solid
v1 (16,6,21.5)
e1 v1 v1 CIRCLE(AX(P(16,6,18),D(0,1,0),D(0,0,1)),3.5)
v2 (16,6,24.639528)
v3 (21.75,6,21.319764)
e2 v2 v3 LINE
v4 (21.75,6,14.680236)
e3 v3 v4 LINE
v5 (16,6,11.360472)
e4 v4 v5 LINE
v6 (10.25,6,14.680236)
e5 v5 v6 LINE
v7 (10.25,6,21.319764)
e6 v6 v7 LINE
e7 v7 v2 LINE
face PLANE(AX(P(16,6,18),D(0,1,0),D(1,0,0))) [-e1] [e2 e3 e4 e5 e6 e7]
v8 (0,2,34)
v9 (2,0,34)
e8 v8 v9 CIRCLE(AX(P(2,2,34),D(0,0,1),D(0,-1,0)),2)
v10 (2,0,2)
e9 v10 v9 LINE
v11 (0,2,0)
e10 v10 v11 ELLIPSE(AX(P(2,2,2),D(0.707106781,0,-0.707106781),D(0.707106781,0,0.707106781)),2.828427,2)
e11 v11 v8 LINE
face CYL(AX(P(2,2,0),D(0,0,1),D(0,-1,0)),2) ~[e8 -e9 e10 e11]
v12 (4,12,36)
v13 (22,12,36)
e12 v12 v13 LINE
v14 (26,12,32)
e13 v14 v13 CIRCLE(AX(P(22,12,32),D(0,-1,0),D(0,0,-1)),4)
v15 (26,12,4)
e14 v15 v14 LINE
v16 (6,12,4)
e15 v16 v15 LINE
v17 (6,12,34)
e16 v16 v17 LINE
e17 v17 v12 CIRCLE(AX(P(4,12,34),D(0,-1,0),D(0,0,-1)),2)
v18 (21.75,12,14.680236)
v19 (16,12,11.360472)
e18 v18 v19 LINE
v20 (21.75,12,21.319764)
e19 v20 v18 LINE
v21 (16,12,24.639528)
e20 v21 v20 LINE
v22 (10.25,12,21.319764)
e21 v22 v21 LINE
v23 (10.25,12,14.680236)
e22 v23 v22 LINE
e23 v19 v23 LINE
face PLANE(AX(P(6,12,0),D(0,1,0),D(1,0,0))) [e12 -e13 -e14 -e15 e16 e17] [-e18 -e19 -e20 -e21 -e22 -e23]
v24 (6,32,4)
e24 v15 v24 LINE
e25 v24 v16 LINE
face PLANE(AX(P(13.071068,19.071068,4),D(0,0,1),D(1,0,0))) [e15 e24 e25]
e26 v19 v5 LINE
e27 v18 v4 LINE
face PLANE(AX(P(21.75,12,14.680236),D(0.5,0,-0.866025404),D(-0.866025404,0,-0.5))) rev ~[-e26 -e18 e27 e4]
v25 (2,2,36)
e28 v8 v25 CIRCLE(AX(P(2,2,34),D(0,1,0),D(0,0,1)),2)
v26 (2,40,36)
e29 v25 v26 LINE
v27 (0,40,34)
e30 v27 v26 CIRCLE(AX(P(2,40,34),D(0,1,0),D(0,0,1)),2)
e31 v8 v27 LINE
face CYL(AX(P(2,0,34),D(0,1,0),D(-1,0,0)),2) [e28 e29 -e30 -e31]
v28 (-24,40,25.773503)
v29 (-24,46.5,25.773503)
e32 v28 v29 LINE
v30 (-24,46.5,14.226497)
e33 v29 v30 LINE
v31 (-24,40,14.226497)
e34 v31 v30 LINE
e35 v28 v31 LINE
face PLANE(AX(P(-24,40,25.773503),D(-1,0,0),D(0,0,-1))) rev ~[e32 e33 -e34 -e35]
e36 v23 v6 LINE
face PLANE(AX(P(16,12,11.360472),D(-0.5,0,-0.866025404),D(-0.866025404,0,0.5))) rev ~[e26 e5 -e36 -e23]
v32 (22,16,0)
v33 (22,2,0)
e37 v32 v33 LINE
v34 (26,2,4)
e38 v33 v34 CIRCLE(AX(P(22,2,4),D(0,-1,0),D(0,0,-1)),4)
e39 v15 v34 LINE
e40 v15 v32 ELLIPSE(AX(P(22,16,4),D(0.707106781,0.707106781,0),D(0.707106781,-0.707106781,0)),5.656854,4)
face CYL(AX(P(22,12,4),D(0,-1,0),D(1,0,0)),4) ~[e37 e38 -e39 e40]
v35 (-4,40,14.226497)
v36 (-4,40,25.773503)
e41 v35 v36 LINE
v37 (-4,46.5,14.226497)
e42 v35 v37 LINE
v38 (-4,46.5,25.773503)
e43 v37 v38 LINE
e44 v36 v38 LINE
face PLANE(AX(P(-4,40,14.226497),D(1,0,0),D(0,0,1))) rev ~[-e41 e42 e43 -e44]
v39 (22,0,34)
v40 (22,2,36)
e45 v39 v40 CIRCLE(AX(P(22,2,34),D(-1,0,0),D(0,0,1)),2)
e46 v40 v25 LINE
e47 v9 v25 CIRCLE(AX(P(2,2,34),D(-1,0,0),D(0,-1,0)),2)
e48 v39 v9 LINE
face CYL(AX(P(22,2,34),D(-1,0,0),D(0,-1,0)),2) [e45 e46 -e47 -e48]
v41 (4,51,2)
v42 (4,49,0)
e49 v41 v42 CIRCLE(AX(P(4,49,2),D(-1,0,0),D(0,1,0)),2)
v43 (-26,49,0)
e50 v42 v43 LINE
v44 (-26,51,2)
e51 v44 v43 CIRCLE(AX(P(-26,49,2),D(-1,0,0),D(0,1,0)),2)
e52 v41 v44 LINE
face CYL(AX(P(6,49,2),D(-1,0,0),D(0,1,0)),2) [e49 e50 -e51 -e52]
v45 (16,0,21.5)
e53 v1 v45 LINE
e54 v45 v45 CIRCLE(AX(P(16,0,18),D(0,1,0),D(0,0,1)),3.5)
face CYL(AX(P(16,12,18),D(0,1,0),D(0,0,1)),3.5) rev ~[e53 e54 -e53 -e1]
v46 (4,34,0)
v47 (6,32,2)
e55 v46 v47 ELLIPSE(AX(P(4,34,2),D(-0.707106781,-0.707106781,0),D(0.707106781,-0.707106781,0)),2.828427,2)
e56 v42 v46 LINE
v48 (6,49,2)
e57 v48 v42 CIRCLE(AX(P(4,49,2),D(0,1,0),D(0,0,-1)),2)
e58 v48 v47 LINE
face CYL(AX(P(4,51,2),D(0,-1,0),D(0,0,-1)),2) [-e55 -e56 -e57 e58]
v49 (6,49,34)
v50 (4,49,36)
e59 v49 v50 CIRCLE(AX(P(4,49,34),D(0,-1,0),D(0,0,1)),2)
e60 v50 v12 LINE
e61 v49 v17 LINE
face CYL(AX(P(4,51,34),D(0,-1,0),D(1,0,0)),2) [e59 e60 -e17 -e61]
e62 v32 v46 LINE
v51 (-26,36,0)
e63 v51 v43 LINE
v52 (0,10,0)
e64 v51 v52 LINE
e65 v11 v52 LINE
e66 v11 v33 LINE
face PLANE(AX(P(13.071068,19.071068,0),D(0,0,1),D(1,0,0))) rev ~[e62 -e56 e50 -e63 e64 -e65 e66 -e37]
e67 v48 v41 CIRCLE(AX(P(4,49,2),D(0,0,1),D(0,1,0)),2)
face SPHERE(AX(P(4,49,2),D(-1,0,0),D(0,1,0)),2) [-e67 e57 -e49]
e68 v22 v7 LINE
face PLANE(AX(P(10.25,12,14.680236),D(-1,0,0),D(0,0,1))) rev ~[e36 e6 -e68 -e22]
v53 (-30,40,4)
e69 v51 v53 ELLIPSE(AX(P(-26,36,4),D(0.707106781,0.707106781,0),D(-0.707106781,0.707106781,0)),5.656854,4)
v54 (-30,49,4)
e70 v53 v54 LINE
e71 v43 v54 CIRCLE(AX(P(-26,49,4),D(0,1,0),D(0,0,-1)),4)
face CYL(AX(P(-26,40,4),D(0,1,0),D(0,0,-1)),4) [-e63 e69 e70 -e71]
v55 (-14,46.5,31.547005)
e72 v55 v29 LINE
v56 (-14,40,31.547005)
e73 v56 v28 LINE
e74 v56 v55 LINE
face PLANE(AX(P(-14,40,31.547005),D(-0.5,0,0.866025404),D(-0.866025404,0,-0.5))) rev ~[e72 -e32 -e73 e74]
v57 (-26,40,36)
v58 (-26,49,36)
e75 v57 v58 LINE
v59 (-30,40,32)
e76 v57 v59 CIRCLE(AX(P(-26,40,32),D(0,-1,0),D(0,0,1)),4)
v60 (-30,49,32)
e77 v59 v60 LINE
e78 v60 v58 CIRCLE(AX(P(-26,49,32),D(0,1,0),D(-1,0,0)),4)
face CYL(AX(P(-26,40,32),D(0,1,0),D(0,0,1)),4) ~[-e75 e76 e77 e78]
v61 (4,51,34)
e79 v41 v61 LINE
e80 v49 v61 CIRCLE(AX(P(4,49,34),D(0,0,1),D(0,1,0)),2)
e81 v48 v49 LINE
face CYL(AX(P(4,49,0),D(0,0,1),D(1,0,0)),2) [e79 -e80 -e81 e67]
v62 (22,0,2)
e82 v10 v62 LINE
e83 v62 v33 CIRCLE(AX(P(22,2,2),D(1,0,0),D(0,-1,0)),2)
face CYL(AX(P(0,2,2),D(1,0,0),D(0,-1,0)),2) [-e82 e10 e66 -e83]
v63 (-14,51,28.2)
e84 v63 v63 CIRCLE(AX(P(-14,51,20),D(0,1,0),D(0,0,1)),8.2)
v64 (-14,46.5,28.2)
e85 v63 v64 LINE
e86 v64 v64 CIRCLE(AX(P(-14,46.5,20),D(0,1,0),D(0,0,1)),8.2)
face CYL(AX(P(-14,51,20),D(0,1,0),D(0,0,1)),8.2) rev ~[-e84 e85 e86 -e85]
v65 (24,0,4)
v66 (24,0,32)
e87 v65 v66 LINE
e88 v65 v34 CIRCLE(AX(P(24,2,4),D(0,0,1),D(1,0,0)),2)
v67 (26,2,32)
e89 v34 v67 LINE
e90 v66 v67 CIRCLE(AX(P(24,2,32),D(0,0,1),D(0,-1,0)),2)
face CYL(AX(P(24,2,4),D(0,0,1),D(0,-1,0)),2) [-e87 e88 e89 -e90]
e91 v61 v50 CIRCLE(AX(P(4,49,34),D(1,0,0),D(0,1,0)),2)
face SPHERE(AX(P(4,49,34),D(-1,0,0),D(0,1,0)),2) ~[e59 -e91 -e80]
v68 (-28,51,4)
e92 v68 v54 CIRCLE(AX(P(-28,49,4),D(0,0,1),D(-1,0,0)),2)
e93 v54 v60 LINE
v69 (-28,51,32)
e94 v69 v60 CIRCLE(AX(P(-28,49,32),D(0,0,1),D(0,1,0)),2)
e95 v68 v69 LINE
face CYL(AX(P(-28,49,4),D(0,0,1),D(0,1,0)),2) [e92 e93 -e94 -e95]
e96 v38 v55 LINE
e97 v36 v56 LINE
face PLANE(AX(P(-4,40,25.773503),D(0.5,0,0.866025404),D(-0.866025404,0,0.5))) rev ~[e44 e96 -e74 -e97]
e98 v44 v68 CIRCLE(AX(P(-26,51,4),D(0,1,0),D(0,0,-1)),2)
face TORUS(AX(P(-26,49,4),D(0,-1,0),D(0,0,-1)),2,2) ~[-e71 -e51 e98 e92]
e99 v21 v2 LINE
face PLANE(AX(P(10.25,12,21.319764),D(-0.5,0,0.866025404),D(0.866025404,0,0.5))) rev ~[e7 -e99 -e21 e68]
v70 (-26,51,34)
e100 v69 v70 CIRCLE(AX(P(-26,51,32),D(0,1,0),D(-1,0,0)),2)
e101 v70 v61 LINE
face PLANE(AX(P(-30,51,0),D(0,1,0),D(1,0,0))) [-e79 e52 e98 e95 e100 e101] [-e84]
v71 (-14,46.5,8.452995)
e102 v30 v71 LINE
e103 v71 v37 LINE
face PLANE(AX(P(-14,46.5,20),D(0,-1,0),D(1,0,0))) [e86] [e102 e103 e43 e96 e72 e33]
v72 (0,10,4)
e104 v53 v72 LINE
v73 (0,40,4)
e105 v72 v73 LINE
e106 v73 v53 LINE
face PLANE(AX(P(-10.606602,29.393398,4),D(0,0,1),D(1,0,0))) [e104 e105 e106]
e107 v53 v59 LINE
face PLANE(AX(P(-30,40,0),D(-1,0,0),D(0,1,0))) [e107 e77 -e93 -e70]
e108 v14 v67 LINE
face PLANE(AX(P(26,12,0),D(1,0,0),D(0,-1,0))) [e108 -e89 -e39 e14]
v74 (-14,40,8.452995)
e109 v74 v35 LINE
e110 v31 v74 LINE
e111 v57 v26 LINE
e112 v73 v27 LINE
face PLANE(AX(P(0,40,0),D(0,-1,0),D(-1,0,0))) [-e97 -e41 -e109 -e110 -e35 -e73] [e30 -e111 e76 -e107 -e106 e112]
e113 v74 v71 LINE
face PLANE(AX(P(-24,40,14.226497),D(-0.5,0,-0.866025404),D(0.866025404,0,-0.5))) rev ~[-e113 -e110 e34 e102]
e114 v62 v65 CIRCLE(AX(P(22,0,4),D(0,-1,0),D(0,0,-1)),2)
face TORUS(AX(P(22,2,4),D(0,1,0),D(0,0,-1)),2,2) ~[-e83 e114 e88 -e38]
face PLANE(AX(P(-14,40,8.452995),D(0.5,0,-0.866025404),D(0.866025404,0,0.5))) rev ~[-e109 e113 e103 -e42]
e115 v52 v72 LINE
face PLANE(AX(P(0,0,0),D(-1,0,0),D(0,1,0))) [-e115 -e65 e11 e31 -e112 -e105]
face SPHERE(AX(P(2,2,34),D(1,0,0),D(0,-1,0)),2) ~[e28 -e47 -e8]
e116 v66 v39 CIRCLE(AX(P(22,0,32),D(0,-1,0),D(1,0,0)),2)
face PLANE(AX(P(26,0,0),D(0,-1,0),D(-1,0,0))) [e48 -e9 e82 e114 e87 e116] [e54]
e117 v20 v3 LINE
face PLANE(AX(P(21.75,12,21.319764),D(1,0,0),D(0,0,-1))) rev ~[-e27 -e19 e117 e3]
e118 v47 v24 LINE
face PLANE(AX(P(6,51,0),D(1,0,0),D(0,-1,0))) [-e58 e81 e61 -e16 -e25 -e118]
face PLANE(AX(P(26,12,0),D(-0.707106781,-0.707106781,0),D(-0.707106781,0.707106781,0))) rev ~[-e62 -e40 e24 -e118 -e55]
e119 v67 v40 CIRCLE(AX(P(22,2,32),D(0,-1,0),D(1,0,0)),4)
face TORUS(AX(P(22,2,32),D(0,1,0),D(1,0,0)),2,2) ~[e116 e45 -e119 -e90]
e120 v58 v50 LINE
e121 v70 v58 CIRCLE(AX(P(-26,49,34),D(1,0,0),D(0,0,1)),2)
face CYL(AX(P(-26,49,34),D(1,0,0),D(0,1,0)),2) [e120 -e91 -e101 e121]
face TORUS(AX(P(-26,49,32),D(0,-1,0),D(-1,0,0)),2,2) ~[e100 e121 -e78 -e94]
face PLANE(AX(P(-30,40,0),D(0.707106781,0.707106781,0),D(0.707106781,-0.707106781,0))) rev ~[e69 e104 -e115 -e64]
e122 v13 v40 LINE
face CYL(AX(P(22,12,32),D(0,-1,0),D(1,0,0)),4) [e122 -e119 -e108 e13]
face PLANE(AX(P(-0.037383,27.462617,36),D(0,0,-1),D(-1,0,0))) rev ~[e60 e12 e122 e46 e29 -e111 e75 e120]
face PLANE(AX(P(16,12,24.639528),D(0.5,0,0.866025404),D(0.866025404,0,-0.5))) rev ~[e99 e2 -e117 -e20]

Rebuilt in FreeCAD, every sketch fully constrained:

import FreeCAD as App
import Part
import Sketcher
Q = App.Units.Quantity


def edges_at(feature, points):
    """Names of the edges that pass closest to the given points."""
    edges = feature.Shape.Edges
    near = lambda p: min(range(len(edges)), key=lambda i: edges[i].distToShape(Part.Vertex(*p))[0])
    return sorted({f"Edge{near(p) + 1}" for p in points})

doc = App.newDocument("Part")
params = doc.addObject("Spreadsheet::Sheet", "Params")
for row, (alias, value) in enumerate([
    ("sketch1_width", "26 mm"),
    ("sketch1_width2", "20 mm"),
    ("sketch1_width3", "36 mm"),
    ("sketch1_height", "40 mm"),
    ("sketch1_height2", "12 mm"),
    ("pad1_length", "36 mm"),
    ("sketch2_diameter", "7 mm"),
    ("pocket1_length", "32 mm"),
    ("sketch3_diameter", "16.4 mm"),
    ("pocket2_length", "32 mm"),
    ("pocket3_length", "6 mm"),
    ("sketch5_width", "20 mm"),
    ("sketch5_width2", "30 mm"),
    ("pad2_length", "4 mm"),
    ("pocket4_length", "6.5 mm"),
    ("fillet_radius", "4 mm"),
    ("fillet2_radius", "2 mm"),
], start=1):
    params.set(f"A{row}", alias)
    params.set(f"B{row}", "=" + value)
    params.setAlias(f"B{row}", alias)

body = doc.addObject("PartDesign::Body", "Body")

# Sketch on XY plane
sketch1 = body.newObject("Sketcher::SketchObject", "Sketch")
sketch1.AttachmentSupport = (doc.getObject("XY_Plane"), [""])
sketch1.MapMode = "FlatFace"
sketch1.addGeometry([
    Part.LineSegment(App.Vector(0, 40, 0), App.Vector(0, 0, 0)),  # 0
    Part.LineSegment(App.Vector(0, 0, 0), App.Vector(26, 0, 0)),  # 1
    Part.LineSegment(App.Vector(26, 0, 0), App.Vector(26, 12, 0)),  # 2
    Part.LineSegment(App.Vector(26, 12, 0), App.Vector(6, 12, 0)),  # 3
    Part.LineSegment(App.Vector(6, 12, 0), App.Vector(6, 51, 0)),  # 4
    Part.LineSegment(App.Vector(6, 51, 0), App.Vector(-30, 51, 0)),  # 5
    Part.LineSegment(App.Vector(-30, 51, 0), App.Vector(-30, 40, 0)),  # 6
    Part.LineSegment(App.Vector(-30, 40, 0), App.Vector(0, 40, 0)),  # 7
], False)
sketch1.addConstraint([
    Sketcher.Constraint("Coincident", 0, 2, 1, 1),
    Sketcher.Constraint("Coincident", 1, 2, 2, 1),
    Sketcher.Constraint("Coincident", 2, 2, 3, 1),
    Sketcher.Constraint("Coincident", 3, 2, 4, 1),
    Sketcher.Constraint("Coincident", 4, 2, 5, 1),
    Sketcher.Constraint("Coincident", 5, 2, 6, 1),
    Sketcher.Constraint("Coincident", 6, 2, 7, 1),
    Sketcher.Constraint("Coincident", 7, 2, 0, 1),
    Sketcher.Constraint("Vertical", 0),
    Sketcher.Constraint("Horizontal", 1),
    Sketcher.Constraint("Vertical", 2),
    Sketcher.Constraint("Horizontal", 3),
    Sketcher.Constraint("Vertical", 4),
    Sketcher.Constraint("Horizontal", 5),
    Sketcher.Constraint("Vertical", 6),
    Sketcher.Constraint("Horizontal", 7),
    Sketcher.Constraint("Coincident", 0, 2, -1, 1),
    Sketcher.Constraint("DistanceX", 1, 1, 1, 2, Q("26 mm")),
    Sketcher.Constraint("DistanceX", 3, 2, 3, 1, Q("20 mm")),
    Sketcher.Constraint("DistanceX", 5, 2, 5, 1, Q("36 mm")),
    Sketcher.Constraint("DistanceY", 0, 2, 0, 1, Q("40 mm")),
    Sketcher.Constraint("DistanceY", 2, 1, 2, 2, Q("12 mm")),
    Sketcher.Constraint("DistanceY", 4, 1, 4, 2, Q("39 mm")),
])
sketch1.setExpression("Constraints[17]", "Params.sketch1_width")
sketch1.setExpression("Constraints[18]", "Params.sketch1_width2")
sketch1.setExpression("Constraints[19]", "Params.sketch1_width3")
sketch1.setExpression("Constraints[20]", "Params.sketch1_height")
sketch1.setExpression("Constraints[21]", "Params.sketch1_height2")
pad1 = body.newObject("PartDesign::Pad", "Pad")
pad1.Profile = sketch1
pad1.setExpression("Length", "Params.pad1_length")

# Sketch on XZ plane
sketch2 = body.newObject("Sketcher::SketchObject", "Sketch001")
sketch2.AttachmentSupport = (doc.getObject("XZ_Plane"), [""])
sketch2.MapMode = "FlatFace"
sketch2.AttachmentOffset = App.Placement(App.Vector(0, 0, -12), App.Rotation())
sketch2.addGeometry(Part.Circle(App.Vector(16, 18, 0), App.Vector(0, 0, 1), 3.5), False)
sketch2.addConstraint([
    Sketcher.Constraint("Diameter", 0, Q("7 mm")),
    Sketcher.Constraint("DistanceX", -1, 1, 0, 3, Q("16 mm")),
    Sketcher.Constraint("DistanceY", -1, 1, 0, 3, Q("18 mm")),
])
sketch2.setExpression("Constraints[0]", "Params.sketch2_diameter")
pocket1 = body.newObject("PartDesign::Pocket", "Pocket")
pocket1.Profile = sketch2
pocket1.setExpression("Length", "Params.pocket1_length")
pocket1.Reversed = True

# Sketch on XZ plane
sketch3 = body.newObject("Sketcher::SketchObject", "Sketch002")
sketch3.AttachmentSupport = (doc.getObject("XZ_Plane"), [""])
sketch3.MapMode = "FlatFace"
sketch3.AttachmentOffset = App.Placement(App.Vector(0, 0, -51), App.Rotation())
sketch3.addGeometry(Part.Circle(App.Vector(-14, 20, 0), App.Vector(0, 0, 1), 8), False)
sketch3.addConstraint([
    Sketcher.Constraint("Diameter", 0, Q("16.4 mm")),
    Sketcher.Constraint("DistanceX", 0, 3, -1, 1, Q("14 mm")),
    Sketcher.Constraint("DistanceY", -1, 1, 0, 3, Q("20 mm")),
])
sketch3.setExpression("Constraints[0]", "Params.sketch3_diameter")
pocket2 = body.newObject("PartDesign::Pocket", "Pocket001")
pocket2.Profile = sketch3
pocket2.setExpression("Length", "Params.pocket2_length")
pocket2.Reversed = True

# Sketch on XZ plane
sketch4 = body.newObject("Sketcher::SketchObject", "Sketch003")
sketch4.AttachmentSupport = (doc.getObject("XZ_Plane"), [""])
sketch4.MapMode = "FlatFace"
sketch4.AttachmentOffset = App.Placement(App.Vector(0, 0, -12), App.Rotation())
sketch4.addGeometry([
    Part.LineSegment(App.Vector(16, 25, 0), App.Vector(22, 21, 0)),  # 0
    Part.LineSegment(App.Vector(22, 21, 0), App.Vector(22, 15, 0)),  # 1
    Part.LineSegment(App.Vector(22, 15, 0), App.Vector(16, 11, 0)),  # 2
    Part.LineSegment(App.Vector(16, 11, 0), App.Vector(10, 15, 0)),  # 3
    Part.LineSegment(App.Vector(10, 15, 0), App.Vector(10, 21, 0)),  # 4
    Part.LineSegment(App.Vector(10, 21, 0), App.Vector(16, 25, 0)),  # 5
], False)
sketch4.addConstraint([
    Sketcher.Constraint("Coincident", 0, 2, 1, 1),
    Sketcher.Constraint("Coincident", 1, 2, 2, 1),
    Sketcher.Constraint("Coincident", 2, 2, 3, 1),
    Sketcher.Constraint("Coincident", 3, 2, 4, 1),
    Sketcher.Constraint("Coincident", 4, 2, 5, 1),
    Sketcher.Constraint("Coincident", 5, 2, 0, 1),
    Sketcher.Constraint("Vertical", 1),
    Sketcher.Constraint("Vertical", 4),
    Sketcher.Constraint("Parallel", 0, 3),
    Sketcher.Constraint("Parallel", 2, 5),
    Sketcher.Constraint("Horizontal", 1, 2, 3, 2),
    Sketcher.Constraint("Horizontal", 0, 2, 4, 2),
    Sketcher.Constraint("Vertical", 2, 2, 5, 2),
    Sketcher.Constraint("Angle", 0, Q("-30 deg")),
    Sketcher.Constraint("DistanceX", -1, 1, 2, 2, Q("16 mm")),
    Sketcher.Constraint("DistanceX", 3, 2, 1, 2, Q("11.5 mm")),
    Sketcher.Constraint("DistanceY", 1, 2, 1, 1, Q("6.639528 mm")),
    Sketcher.Constraint("DistanceY", -1, 1, 2, 2, Q("11.360472 mm")),
])
pocket3 = body.newObject("PartDesign::Pocket", "Pocket002")
pocket3.Profile = sketch4
pocket3.setExpression("Length", "Params.pocket3_length")
pocket3.Reversed = True

# Sketch on XY plane
sketch5 = body.newObject("Sketcher::SketchObject", "Sketch004")
sketch5.AttachmentSupport = (doc.getObject("XY_Plane"), [""])
sketch5.MapMode = "FlatFace"
sketch5.addGeometry([
    Part.LineSegment(App.Vector(6, 32, 0), App.Vector(26, 12, 0)),  # 0
    Part.LineSegment(App.Vector(26, 12, 0), App.Vector(6, 12, 0)),  # 1
    Part.LineSegment(App.Vector(6, 12, 0), App.Vector(6, 32, 0)),  # 2
    Part.LineSegment(App.Vector(0, 40, 0), App.Vector(0, 10, 0)),  # 3
    Part.LineSegment(App.Vector(0, 10, 0), App.Vector(-30, 40, 0)),  # 4
    Part.LineSegment(App.Vector(-30, 40, 0), App.Vector(0, 40, 0)),  # 5
], False)
sketch5.addConstraint([
    Sketcher.Constraint("Coincident", 0, 2, 1, 1),
    Sketcher.Constraint("Coincident", 1, 2, 2, 1),
    Sketcher.Constraint("Coincident", 2, 2, 0, 1),
    Sketcher.Constraint("Coincident", 3, 2, 4, 1),
    Sketcher.Constraint("Coincident", 4, 2, 5, 1),
    Sketcher.Constraint("Coincident", 5, 2, 3, 1),
    Sketcher.Constraint("Horizontal", 1),
    Sketcher.Constraint("Vertical", 2),
    Sketcher.Constraint("Vertical", 3),
    Sketcher.Constraint("Horizontal", 5),
    Sketcher.Constraint("PointOnObject", 3, 2, -2),
    Sketcher.Constraint("Parallel", 0, 4),
    Sketcher.Constraint("Equal", 1, 2),
    Sketcher.Constraint("DistanceX", 1, 2, 1, 1, Q("20 mm")),
    Sketcher.Constraint("DistanceX", 5, 1, 5, 2, Q("30 mm")),
    Sketcher.Constraint("DistanceX", -1, 1, 0, 2, Q("26 mm")),
    Sketcher.Constraint("DistanceY", -1, 1, 0, 2, Q("12 mm")),
    Sketcher.Constraint("DistanceY", -1, 1, 3, 2, Q("10 mm")),
])
sketch5.setExpression("Constraints[13]", "Params.sketch5_width")
sketch5.setExpression("Constraints[14]", "Params.sketch5_width2")
pad2 = body.newObject("PartDesign::Pad", "Pad001")
pad2.Profile = sketch5
pad2.setExpression("Length", "Params.pad2_length")

# Sketch on XZ plane
sketch6 = body.newObject("Sketcher::SketchObject", "Sketch005")
sketch6.AttachmentSupport = (doc.getObject("XZ_Plane"), [""])
sketch6.MapMode = "FlatFace"
sketch6.AttachmentOffset = App.Placement(App.Vector(0, 0, -40), App.Rotation())
sketch6.addGeometry([
    Part.LineSegment(App.Vector(-14, 8, 0), App.Vector(-4, 14, 0)),  # 0
    Part.LineSegment(App.Vector(-4, 14, 0), App.Vector(-4, 26, 0)),  # 1
    Part.LineSegment(App.Vector(-4, 26, 0), App.Vector(-14, 32, 0)),  # 2
    Part.LineSegment(App.Vector(-14, 32, 0), App.Vector(-24, 26, 0)),  # 3
    Part.LineSegment(App.Vector(-24, 26, 0), App.Vector(-24, 14, 0)),  # 4
    Part.LineSegment(App.Vector(-24, 14, 0), App.Vector(-14, 8, 0)),  # 5
], False)
sketch6.addConstraint([
    Sketcher.Constraint("Coincident", 0, 2, 1, 1),
    Sketcher.Constraint("Coincident", 1, 2, 2, 1),
    Sketcher.Constraint("Coincident", 2, 2, 3, 1),
    Sketcher.Constraint("Coincident", 3, 2, 4, 1),
    Sketcher.Constraint("Coincident", 4, 2, 5, 1),
    Sketcher.Constraint("Coincident", 5, 2, 0, 1),
    Sketcher.Constraint("Vertical", 1),
    Sketcher.Constraint("Vertical", 4),
    Sketcher.Constraint("Parallel", 0, 3),
    Sketcher.Constraint("Parallel", 2, 5),
    Sketcher.Constraint("Horizontal", 1, 2, 3, 2),
    Sketcher.Constraint("Horizontal", 0, 2, 4, 2),
    Sketcher.Constraint("Vertical", 2, 2, 5, 2),
    Sketcher.Constraint("Angle", 0, Q("30 deg")),
    Sketcher.Constraint("DistanceX", 0, 2, -1, 1, Q("4 mm")),
    Sketcher.Constraint("DistanceX", 2, 2, -1, 1, Q("14 mm")),
    Sketcher.Constraint("DistanceY", 1, 1, 1, 2, Q("11.547005 mm")),
    Sketcher.Constraint("DistanceY", -1, 1, 0, 2, Q("14.226497 mm")),
])
pocket4 = body.newObject("PartDesign::Pocket", "Pocket003")
pocket4.Profile = sketch6
pocket4.setExpression("Length", "Params.pocket4_length")
doc.recompute()

fillet = body.newObject("PartDesign::Fillet", "Fillet")
fillet.Base = (pocket4, edges_at(pocket4, [
    (26, 6, 0),
    (-30, 45.5, 36),
    (26, 6, 36),
    (-30, 45.5, 0),
]))
fillet.setExpression("Radius", "Params.fillet_radius")
doc.recompute()

fillet2 = body.newObject("PartDesign::Fillet", "Fillet001")
fillet2.Base = (fillet, edges_at(fillet, [
    (26, 0, 18),
    (24.828, 0, 1.172),
    (24.828, 0, 34.828),
    (11, 0, 0),
    (-30, 51, 18),
    (-28.828, 51, 1.172),
    (-28.828, 51, 34.828),
    (0, 0, 18),
    (6, 51, 18),
    (6, 31.5, 36),
    (-10, 51, 36),
    (0, 20, 36),
    (11, 0, 36),
    (6, 41.5, 0),
    (-10, 51, 0),
]))
fillet2.setExpression("Radius", "Params.fillet2_radius")

doc.recompute()
